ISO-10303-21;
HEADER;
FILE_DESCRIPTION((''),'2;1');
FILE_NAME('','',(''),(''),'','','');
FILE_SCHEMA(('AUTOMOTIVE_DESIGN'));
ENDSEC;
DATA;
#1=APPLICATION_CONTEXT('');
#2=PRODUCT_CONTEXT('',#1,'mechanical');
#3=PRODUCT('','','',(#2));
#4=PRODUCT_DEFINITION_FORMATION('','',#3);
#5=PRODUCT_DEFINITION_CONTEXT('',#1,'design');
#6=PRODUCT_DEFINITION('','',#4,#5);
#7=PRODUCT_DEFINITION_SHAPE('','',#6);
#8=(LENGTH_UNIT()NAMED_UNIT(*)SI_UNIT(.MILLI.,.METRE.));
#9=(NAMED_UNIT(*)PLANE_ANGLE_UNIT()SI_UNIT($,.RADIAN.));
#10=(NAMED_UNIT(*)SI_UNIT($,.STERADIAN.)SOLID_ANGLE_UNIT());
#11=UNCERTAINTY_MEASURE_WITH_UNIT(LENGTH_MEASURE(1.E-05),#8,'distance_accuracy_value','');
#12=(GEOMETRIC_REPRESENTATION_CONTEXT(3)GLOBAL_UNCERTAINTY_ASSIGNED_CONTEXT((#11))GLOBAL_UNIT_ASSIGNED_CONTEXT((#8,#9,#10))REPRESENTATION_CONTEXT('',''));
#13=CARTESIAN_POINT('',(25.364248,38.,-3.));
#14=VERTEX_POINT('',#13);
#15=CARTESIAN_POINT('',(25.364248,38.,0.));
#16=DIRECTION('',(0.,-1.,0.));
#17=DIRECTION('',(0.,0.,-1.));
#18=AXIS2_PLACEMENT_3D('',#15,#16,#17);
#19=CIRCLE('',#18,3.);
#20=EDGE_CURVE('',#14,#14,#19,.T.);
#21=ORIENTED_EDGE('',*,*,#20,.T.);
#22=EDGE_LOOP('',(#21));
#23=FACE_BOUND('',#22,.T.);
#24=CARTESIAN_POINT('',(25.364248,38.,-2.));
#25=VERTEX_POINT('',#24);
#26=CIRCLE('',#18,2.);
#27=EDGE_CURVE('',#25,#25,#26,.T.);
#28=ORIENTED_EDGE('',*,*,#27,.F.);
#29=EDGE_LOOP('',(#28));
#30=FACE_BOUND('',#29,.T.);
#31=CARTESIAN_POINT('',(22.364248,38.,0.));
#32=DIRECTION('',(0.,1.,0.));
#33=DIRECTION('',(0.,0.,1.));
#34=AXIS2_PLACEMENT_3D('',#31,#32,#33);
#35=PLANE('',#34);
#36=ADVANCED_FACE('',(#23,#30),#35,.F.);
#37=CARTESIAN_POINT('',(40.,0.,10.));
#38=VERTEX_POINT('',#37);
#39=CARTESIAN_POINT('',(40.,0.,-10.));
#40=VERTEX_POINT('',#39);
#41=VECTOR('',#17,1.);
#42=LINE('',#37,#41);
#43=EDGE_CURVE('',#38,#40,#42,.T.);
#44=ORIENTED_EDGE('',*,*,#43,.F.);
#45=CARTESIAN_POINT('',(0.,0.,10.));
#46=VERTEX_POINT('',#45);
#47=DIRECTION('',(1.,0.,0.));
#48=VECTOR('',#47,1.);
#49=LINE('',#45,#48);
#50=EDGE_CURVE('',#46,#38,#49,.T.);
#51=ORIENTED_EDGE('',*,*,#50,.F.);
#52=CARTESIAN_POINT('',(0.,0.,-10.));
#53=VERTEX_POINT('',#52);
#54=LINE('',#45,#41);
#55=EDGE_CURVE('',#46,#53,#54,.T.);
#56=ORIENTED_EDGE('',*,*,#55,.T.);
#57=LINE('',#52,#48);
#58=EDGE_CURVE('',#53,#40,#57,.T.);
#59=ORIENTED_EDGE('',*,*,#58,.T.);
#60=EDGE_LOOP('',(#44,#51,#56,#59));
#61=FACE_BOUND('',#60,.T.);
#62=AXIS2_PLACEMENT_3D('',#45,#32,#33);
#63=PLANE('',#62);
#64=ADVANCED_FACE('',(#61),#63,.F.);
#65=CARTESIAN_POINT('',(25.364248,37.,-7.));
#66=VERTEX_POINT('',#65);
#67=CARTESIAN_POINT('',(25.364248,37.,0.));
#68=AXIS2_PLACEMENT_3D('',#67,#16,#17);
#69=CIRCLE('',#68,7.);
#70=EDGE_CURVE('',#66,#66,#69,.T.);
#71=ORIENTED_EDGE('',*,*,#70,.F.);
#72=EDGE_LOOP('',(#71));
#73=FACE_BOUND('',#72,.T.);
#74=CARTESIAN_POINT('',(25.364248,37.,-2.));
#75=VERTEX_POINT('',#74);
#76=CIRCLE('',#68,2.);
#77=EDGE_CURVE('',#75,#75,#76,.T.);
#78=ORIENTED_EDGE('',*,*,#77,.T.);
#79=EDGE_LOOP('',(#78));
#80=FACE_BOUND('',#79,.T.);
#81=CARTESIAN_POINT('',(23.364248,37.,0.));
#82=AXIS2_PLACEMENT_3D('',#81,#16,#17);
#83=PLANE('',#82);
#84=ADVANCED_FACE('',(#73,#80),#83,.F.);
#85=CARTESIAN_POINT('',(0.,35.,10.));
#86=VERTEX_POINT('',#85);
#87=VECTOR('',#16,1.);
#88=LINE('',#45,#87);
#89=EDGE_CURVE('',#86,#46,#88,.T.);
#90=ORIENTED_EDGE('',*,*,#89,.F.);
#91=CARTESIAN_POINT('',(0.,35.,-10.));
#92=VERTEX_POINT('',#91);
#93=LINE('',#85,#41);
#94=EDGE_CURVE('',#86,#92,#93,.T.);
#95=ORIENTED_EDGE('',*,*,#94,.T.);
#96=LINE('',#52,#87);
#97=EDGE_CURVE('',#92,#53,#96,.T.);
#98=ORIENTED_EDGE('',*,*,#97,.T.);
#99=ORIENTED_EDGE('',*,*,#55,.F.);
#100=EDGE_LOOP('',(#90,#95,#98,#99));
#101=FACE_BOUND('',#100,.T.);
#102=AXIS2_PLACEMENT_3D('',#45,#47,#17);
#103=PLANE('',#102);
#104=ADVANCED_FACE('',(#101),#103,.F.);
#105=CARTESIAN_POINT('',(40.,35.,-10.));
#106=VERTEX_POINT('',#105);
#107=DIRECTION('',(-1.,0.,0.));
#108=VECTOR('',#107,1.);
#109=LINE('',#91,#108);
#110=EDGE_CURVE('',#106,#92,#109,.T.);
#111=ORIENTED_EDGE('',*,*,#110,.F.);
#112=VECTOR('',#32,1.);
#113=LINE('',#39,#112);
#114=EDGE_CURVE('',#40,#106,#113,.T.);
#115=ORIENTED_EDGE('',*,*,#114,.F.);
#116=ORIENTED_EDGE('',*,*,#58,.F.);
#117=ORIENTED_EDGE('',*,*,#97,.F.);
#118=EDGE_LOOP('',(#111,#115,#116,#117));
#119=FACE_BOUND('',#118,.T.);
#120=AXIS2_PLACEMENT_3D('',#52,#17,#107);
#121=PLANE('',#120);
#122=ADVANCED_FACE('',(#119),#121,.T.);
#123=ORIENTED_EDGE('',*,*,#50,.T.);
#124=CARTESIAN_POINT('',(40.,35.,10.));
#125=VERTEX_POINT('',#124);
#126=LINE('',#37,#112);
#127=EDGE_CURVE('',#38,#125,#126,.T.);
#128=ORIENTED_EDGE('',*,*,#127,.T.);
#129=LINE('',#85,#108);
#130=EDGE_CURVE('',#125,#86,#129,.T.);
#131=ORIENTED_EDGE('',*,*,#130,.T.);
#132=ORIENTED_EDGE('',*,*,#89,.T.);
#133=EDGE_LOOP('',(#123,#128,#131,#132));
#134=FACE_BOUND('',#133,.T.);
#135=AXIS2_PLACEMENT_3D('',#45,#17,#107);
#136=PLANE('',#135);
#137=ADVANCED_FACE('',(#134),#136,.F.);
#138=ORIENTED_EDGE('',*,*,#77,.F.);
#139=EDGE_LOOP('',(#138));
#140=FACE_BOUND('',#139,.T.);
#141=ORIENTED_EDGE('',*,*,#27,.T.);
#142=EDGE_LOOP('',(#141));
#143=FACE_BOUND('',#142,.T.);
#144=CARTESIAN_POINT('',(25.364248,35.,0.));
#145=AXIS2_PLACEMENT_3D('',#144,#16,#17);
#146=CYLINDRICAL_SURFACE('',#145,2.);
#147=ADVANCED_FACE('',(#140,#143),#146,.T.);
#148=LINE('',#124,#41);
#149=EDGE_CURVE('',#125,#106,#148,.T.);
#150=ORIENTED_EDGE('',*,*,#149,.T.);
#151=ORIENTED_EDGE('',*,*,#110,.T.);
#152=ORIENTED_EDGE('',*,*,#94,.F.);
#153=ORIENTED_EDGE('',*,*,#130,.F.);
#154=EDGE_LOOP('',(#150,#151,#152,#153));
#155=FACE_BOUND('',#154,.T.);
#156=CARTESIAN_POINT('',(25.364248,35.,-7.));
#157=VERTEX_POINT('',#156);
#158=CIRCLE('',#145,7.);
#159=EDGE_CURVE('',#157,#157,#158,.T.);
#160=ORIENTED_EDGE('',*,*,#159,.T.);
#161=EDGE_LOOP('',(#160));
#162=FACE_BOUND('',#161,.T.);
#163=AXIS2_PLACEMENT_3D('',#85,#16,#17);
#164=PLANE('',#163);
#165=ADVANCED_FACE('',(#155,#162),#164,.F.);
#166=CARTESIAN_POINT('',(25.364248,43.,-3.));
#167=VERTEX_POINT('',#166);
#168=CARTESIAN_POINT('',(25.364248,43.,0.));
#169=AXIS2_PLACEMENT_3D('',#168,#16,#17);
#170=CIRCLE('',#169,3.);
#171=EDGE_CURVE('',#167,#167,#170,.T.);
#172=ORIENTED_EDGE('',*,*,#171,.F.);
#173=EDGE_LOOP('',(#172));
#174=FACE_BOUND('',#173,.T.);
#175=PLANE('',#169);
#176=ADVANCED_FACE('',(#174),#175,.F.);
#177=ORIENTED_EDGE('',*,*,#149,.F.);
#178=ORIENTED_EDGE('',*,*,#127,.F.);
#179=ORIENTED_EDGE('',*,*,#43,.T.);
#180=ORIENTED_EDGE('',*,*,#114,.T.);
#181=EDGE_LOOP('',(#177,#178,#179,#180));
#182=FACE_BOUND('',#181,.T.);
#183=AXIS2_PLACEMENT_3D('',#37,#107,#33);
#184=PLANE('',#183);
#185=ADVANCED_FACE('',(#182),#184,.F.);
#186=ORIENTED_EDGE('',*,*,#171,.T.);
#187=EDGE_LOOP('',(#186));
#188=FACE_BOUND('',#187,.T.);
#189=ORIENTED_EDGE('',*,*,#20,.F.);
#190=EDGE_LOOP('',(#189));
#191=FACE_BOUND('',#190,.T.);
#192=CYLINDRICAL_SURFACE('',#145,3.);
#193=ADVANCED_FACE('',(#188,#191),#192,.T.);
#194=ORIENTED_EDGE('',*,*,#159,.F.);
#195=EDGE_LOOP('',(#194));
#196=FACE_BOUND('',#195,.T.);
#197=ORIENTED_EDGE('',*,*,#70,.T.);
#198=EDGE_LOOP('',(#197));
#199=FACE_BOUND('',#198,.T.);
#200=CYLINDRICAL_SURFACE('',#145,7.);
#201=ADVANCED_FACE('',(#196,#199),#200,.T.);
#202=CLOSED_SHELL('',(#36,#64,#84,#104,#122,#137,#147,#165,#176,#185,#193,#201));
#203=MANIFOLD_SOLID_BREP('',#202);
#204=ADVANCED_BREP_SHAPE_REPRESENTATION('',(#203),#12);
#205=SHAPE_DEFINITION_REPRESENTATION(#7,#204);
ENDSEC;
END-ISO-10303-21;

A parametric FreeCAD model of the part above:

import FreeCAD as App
import Part
import Sketcher
Q = App.Units.Quantity


def add_polygon(sketch, points):
    """Adds a closed chain of lines whose ends are joined by coincident constraints."""
    first, n = sketch.GeometryCount, len(points)
    for a, b in zip(points, points[1:] + points[:1]):
        sketch.addGeometry(Part.LineSegment(App.Vector(*a, 0), App.Vector(*b, 0)), False)
    for i in range(n):
        sketch.addConstraint(Sketcher.Constraint("Coincident", first + i, 2, first + (i + 1) % n, 1))

doc = App.newDocument("Part")
body = doc.addObject("PartDesign::Body", "Body")

# Sketch on XY plane
sketch1 = doc.addObject("Sketcher::SketchObject", "Sketch")
body.addObject(sketch1)
sketch1.AttachmentSupport = (doc.XY_Plane, [""])
sketch1.MapMode = "FlatFace"
add_polygon(sketch1, [(0, 35), (0, 0), (40, 0), (40, 35)])  # lines 0-3
sketch1.addConstraint(Sketcher.Constraint("Vertical", 0))
sketch1.addConstraint(Sketcher.Constraint("Horizontal", 1))
sketch1.addConstraint(Sketcher.Constraint("Vertical", 2))
sketch1.addConstraint(Sketcher.Constraint("Horizontal", 3))
sketch1.addConstraint(Sketcher.Constraint("Coincident", 0, 2, -1, 1))
sketch1.addConstraint(Sketcher.Constraint("DistanceX", 1, 1, 1, 2, Q("40 mm")))
sketch1.addConstraint(Sketcher.Constraint("DistanceY", 0, 2, 0, 1, Q("35 mm")))
pad1 = doc.addObject("PartDesign::Pad", "Pad")
body.addObject(pad1)
pad1.Profile = sketch1
pad1.Length = 20
pad1.Midplane = True

# Sketch on XY plane
sketch2 = doc.addObject("Sketcher::SketchObject", "Sketch001")
body.addObject(sketch2)
sketch2.AttachmentSupport = (doc.XY_Plane, [""])
sketch2.MapMode = "FlatFace"
add_polygon(sketch2, [(25.4, 35), (25.4, 43), (22.4, 43), (22.4, 38), (23.4, 38), (23.4, 37), (18.4, 37), (18.4, 35)])  # lines 0-7
sketch2.addGeometry(Part.LineSegment(App.Vector(25.4, 35, 0), App.Vector(25.4, 43, 0)), True)  # axis
sketch2.addConstraint(Sketcher.Constraint("Vertical", 0))
sketch2.addConstraint(Sketcher.Constraint("Horizontal", 1))
sketch2.addConstraint(Sketcher.Constraint("Vertical", 2))
sketch2.addConstraint(Sketcher.Constraint("Horizontal", 3))
sketch2.addConstraint(Sketcher.Constraint("Vertical", 4))
sketch2.addConstraint(Sketcher.Constraint("Horizontal", 5))
sketch2.addConstraint(Sketcher.Constraint("Vertical", 6))
sketch2.addConstraint(Sketcher.Constraint("Horizontal", 7))
sketch2.addConstraint(Sketcher.Constraint("Vertical", 8))
sketch2.addConstraint(Sketcher.Constraint("Coincident", 8, 1, 7, 2))
sketch2.addConstraint(Sketcher.Constraint("Horizontal", 1, 2, 8, 2))
sketch2.addConstraint(Sketcher.Constraint("Equal", 5, 2))
sketch2.addConstraint(Sketcher.Constraint("Equal", 3, 4))
sketch2.addConstraint(Sketcher.Constraint("DistanceX", 1, 2, 1, 1, Q("3 mm")))
sketch2.addConstraint(Sketcher.Constraint("DistanceX", 3, 1, 3, 2, Q("1 mm")))
sketch2.addConstraint(Sketcher.Constraint("DistanceX", 5, 2, 5, 1, Q("5 mm")))
sketch2.addConstraint(Sketcher.Constraint("DistanceY", 0, 1, 0, 2, Q("8 mm")))
sketch2.addConstraint(Sketcher.Constraint("DistanceY", -1, 1, 0, 2, Q("43 mm")))
sketch2.addConstraint(Sketcher.Constraint("DistanceX", -1, 1, 0, 2, Q("25.364248 mm")))
revolution = doc.addObject("PartDesign::Revolution", "Revolution")
body.addObject(revolution)
revolution.Profile = sketch2
revolution.ReferenceAxis = (sketch2, ["Axis0"])
revolution.Angle = 360

doc.recompute()
